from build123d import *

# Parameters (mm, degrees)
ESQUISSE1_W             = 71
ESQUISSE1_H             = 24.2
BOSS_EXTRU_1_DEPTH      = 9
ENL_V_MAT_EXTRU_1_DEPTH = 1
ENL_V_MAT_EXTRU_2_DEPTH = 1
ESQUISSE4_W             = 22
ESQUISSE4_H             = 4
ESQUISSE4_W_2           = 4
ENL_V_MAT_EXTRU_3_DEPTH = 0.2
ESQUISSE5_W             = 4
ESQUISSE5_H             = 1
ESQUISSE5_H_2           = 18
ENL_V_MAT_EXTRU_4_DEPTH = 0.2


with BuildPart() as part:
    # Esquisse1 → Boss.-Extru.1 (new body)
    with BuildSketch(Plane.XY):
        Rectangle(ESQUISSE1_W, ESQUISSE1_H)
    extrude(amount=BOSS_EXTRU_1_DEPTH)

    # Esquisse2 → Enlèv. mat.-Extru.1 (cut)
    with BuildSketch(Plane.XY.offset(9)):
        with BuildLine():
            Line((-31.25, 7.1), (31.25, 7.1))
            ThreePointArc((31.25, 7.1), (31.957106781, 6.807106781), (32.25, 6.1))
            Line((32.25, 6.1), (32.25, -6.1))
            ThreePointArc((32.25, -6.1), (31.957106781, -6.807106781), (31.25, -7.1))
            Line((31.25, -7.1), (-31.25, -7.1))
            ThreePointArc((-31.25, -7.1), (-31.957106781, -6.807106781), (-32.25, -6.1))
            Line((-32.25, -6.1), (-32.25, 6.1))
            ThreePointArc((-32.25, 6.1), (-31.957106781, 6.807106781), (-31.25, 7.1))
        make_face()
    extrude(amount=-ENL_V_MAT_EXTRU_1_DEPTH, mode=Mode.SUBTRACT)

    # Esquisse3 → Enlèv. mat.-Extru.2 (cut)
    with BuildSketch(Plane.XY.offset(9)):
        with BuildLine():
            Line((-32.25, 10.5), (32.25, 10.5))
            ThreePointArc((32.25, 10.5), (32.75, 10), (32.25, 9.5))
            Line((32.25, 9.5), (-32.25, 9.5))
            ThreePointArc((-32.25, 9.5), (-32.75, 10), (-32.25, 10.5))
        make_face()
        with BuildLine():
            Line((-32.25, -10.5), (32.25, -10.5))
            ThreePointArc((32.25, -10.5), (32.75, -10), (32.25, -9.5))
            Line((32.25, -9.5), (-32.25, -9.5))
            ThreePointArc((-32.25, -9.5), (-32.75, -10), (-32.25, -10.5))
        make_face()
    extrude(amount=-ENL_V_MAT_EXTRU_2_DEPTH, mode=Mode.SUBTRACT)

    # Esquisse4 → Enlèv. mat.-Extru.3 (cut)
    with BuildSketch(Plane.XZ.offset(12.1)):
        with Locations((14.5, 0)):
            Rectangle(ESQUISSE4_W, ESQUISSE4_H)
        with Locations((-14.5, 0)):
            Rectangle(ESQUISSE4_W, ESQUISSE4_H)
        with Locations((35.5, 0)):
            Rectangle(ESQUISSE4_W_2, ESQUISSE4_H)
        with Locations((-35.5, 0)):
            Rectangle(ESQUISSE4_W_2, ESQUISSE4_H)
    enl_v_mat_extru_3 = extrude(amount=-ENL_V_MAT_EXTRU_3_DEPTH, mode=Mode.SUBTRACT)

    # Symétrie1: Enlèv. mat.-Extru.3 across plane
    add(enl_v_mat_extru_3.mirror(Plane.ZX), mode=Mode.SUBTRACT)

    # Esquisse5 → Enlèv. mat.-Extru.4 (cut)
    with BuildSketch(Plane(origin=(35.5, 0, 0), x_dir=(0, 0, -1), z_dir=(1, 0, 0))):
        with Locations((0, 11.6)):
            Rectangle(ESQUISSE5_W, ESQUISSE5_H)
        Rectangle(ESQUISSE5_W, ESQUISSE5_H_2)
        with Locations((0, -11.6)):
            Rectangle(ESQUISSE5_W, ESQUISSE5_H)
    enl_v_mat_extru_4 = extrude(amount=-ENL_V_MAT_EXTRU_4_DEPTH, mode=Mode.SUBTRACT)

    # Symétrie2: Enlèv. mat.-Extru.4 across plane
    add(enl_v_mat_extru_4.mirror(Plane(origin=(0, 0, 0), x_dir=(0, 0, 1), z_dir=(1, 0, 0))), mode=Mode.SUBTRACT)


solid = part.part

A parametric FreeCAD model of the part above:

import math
import FreeCAD as App
import Part
import Sketcher

V = App.Vector

doc = App.newDocument("Part")
body = doc.addObject("PartDesign::Body", "Body")

sketch1 = doc.addObject("Sketcher::SketchObject", "Sketch")
body.addObject(sketch1)
sketch1.AttachmentSupport = (doc.XY_Plane, [""])
sketch1.MapMode = "FlatFace"
sketch1.addGeometry([
    Part.LineSegment(V(-36, 12, 0), V(-36, -12, 0)),
    Part.LineSegment(V(-36, -12, 0), V(36, -12, 0)),
    Part.LineSegment(V(36, -12, 0), V(36, 12, 0)),
    Part.LineSegment(V(36, 12, 0), V(-36, 12, 0)),
], False)
sketch1.addConstraint([
    Sketcher.Constraint("Coincident", 0, 2, 1, 1),
    Sketcher.Constraint("Coincident", 1, 2, 2, 1),
    Sketcher.Constraint("Coincident", 2, 2, 3, 1),
    Sketcher.Constraint("Coincident", 3, 2, 0, 1),
    Sketcher.Constraint("Vertical", 0),
    Sketcher.Constraint("Horizontal", 1),
    Sketcher.Constraint("Vertical", 2),
    Sketcher.Constraint("Horizontal", 3),
    Sketcher.Constraint("Symmetric", 0, 2, 2, 2, -1, 1),
    Sketcher.Constraint("DistanceX", 1, 1, 1, 2, 71.0),
    Sketcher.Constraint("DistanceY", 0, 2, 0, 1, 24.2),
])
pad1 = doc.addObject("PartDesign::Pad", "Pad")
body.addObject(pad1)
pad1.Profile = sketch1
pad1.Length = 9

sketch2 = doc.addObject("Sketcher::SketchObject", "Sketch001")
body.addObject(sketch2)
sketch2.AttachmentSupport = (doc.XY_Plane, [""])
sketch2.MapMode = "FlatFace"
sketch2.AttachmentOffset = App.Placement(V(0, 0, 9), App.Rotation())
sketch2.addGeometry([
    Part.LineSegment(V(31.2, 7.1, 0), V(-31.2, 7.1, 0)),
    Part.ArcOfCircle(Part.Circle(V(-31.2, 6.1, 0), V(0, 0, 1), 1), math.radians(90), math.radians(180)),
    Part.LineSegment(V(-32.2, 6.1, 0), V(-32.2, -6.1, 0)),
    Part.ArcOfCircle(Part.Circle(V(-31.2, -6.1, 0), V(0, 0, 1), 1), math.radians(-180), math.radians(-90)),
    Part.LineSegment(V(-31.2, -7.1, 0), V(31.2, -7.1, 0)),
    Part.ArcOfCircle(Part.Circle(V(31.2, -6.1, 0), V(0, 0, 1), 1), math.radians(-90), math.radians(0)),
    Part.LineSegment(V(32.2, -6.1, 0), V(32.2, 6.1, 0)),
    Part.ArcOfCircle(Part.Circle(V(31.2, 6.1, 0), V(0, 0, 1), 1), math.radians(0), math.radians(90)),
], False)
sketch2.addConstraint([
    Sketcher.Constraint("Tangent", 0, 2, 1, 1),
    Sketcher.Constraint("Tangent", 1, 2, 2, 1),
    Sketcher.Constraint("Tangent", 2, 2, 3, 1),
    Sketcher.Constraint("Tangent", 3, 2, 4, 1),
    Sketcher.Constraint("Tangent", 4, 2, 5, 1),
    Sketcher.Constraint("Tangent", 5, 2, 6, 1),
    Sketcher.Constraint("Tangent", 6, 2, 7, 1),
    Sketcher.Constraint("Tangent", 7, 2, 0, 1),
    Sketcher.Constraint("Horizontal", 0),
    Sketcher.Constraint("Vertical", 2),
    Sketcher.Constraint("Horizontal", 4),
    Sketcher.Constraint("Vertical", 6),
    Sketcher.Constraint("Equal", 1, 3),
    Sketcher.Constraint("Equal", 3, 5),
    Sketcher.Constraint("Equal", 5, 7),
    Sketcher.Constraint("Symmetric", 1, 3, 5, 3, -1, 1),
    Sketcher.Constraint("Radius", 1, 1.0),
    Sketcher.Constraint("DistanceX", 0, 2, 0, 1, 62.5),
    Sketcher.Constraint("DistanceY", 2, 2, 2, 1, 12.2),
])
pocket1 = doc.addObject("PartDesign::Pocket", "Pocket")
body.addObject(pocket1)
pocket1.Profile = sketch2
pocket1.Length = 1

sketch3 = doc.addObject("Sketcher::SketchObject", "Sketch002")
body.addObject(sketch3)
sketch3.AttachmentSupport = (doc.XY_Plane, [""])
sketch3.MapMode = "FlatFace"
sketch3.AttachmentOffset = App.Placement(V(0, 0, 9), App.Rotation())
sketch3.addGeometry([
    Part.LineSegment(V(32.2, 10.5, 0), V(-32.2, 10.5, 0)),
    Part.ArcOfCircle(Part.Circle(V(-32.2, 10, 0), V(0, 0, 1), 0.5), math.radians(90), math.radians(270)),
    Part.LineSegment(V(-32.2, 9.5, 0), V(32.2, 9.5, 0)),
    Part.ArcOfCircle(Part.Circle(V(32.2, 10, 0), V(0, 0, 1), 0.5), math.radians(-90), math.radians(90)),
    Part.LineSegment(V(-32.2, -10.5, 0), V(32.2, -10.5, 0)),
    Part.ArcOfCircle(Part.Circle(V(32.2, -10, 0), V(0, 0, 1), 0.5), math.radians(-90), math.radians(90)),
    Part.LineSegment(V(32.2, -9.5, 0), V(-32.2, -9.5, 0)),
    Part.ArcOfCircle(Part.Circle(V(-32.2, -10, 0), V(0, 0, 1), 0.5), math.radians(90), math.radians(270)),
], False)
sketch3.addConstraint([
    Sketcher.Constraint("Tangent", 0, 2, 1, 1),
    Sketcher.Constraint("Tangent", 1, 2, 2, 1),
    Sketcher.Constraint("Tangent", 2, 2, 3, 1),
    Sketcher.Constraint("Tangent", 3, 2, 0, 1),
    Sketcher.Constraint("Tangent", 4, 2, 5, 1),
    Sketcher.Constraint("Tangent", 5, 2, 6, 1),
    Sketcher.Constraint("Tangent", 6, 2, 7, 1),
    Sketcher.Constraint("Tangent", 7, 2, 4, 1),
    Sketcher.Constraint("Horizontal", 0),
    Sketcher.Constraint("Horizontal", 2),
    Sketcher.Constraint("Horizontal", 4),
    Sketcher.Constraint("Horizontal", 6),
    Sketcher.Constraint("Equal", 3, 5),
    Sketcher.Constraint("Symmetric", 1, 3, 5, 3, -1, 1),
    Sketcher.Constraint("Vertical", 3, 3, 5, 3),
    Sketcher.Constraint("Vertical", 1, 3, 7, 3),
    Sketcher.Constraint("Radius", 1, 0.5),
    Sketcher.Constraint("DistanceX", 0, 2, 0, 1, 64.5),
    Sketcher.Constraint("DistanceY", -1, 1, 1, 3, 10.0),
])
pocket2 = doc.addObject("PartDesign::Pocket", "Pocket001")
body.addObject(pocket2)
pocket2.Profile = sketch3
pocket2.Length = 1

sketch4 = doc.addObject("Sketcher::SketchObject", "Sketch003")
body.addObject(sketch4)
sketch4.AttachmentSupport = (doc.XZ_Plane, [""])
sketch4.MapMode = "FlatFace"
sketch4.AttachmentOffset = App.Placement(V(0, 0, 12.1), App.Rotation())
sketch4.addGeometry([
    Part.LineSegment(V(3.5, 2, 0), V(3.5, -2, 0)),
    Part.LineSegment(V(3.5, -2, 0), V(25.5, -2, 0)),
    Part.LineSegment(V(25.5, -2, 0), V(25.5, 2, 0)),
    Part.LineSegment(V(25.5, 2, 0), V(3.5, 2, 0)),
    Part.LineSegment(V(-25.5, 2, 0), V(-25.5, -2, 0)),
    Part.LineSegment(V(-25.5, -2, 0), V(-3.5, -2, 0)),
    Part.LineSegment(V(-3.5, -2, 0), V(-3.5, 2, 0)),
    Part.LineSegment(V(-3.5, 2, 0), V(-25.5, 2, 0)),
    Part.LineSegment(V(33.5, 2, 0), V(33.5, -2, 0)),
    Part.LineSegment(V(33.5, -2, 0), V(37.5, -2, 0)),
    Part.LineSegment(V(37.5, -2, 0), V(37.5, 2, 0)),
    Part.LineSegment(V(37.5, 2, 0), V(33.5, 2, 0)),
    Part.LineSegment(V(-37.5, 2, 0), V(-37.5, -2, 0)),
    Part.LineSegment(V(-37.5, -2, 0), V(-33.5, -2, 0)),
    Part.LineSegment(V(-33.5, -2, 0), V(-33.5, 2, 0)),
    Part.LineSegment(V(-33.5, 2, 0), V(-37.5, 2, 0)),
], False)
sketch4.addConstraint([
    Sketcher.Constraint("Coincident", 0, 2, 1, 1),
    Sketcher.Constraint("Coincident", 1, 2, 2, 1),
    Sketcher.Constraint("Coincident", 2, 2, 3, 1),
    Sketcher.Constraint("Coincident", 3, 2, 0, 1),
    Sketcher.Constraint("Coincident", 4, 2, 5, 1),
    Sketcher.Constraint("Coincident", 5, 2, 6, 1),
    Sketcher.Constraint("Coincident", 6, 2, 7, 1),
    Sketcher.Constraint("Coincident", 7, 2, 4, 1),
    Sketcher.Constraint("Coincident", 8, 2, 9, 1),
    Sketcher.Constraint("Coincident", 9, 2, 10, 1),
    Sketcher.Constraint("Coincident", 10, 2, 11, 1),
    Sketcher.Constraint("Coincident", 11, 2, 8, 1),
    Sketcher.Constraint("Coincident", 12, 2, 13, 1),
    Sketcher.Constraint("Coincident", 13, 2, 14, 1),
    Sketcher.Constraint("Coincident", 14, 2, 15, 1),
    Sketcher.Constraint("Coincident", 15, 2, 12, 1),
    Sketcher.Constraint("Vertical", 0),
    Sketcher.Constraint("Horizontal", 1),
    Sketcher.Constraint("Vertical", 2),
    Sketcher.Constraint("Horizontal", 3),
    Sketcher.Constraint("Vertical", 4),
    Sketcher.Constraint("Horizontal", 5),
    Sketcher.Constraint("Vertical", 6),
    Sketcher.Constraint("Horizontal", 7),
    Sketcher.Constraint("Vertical", 8),
    Sketcher.Constraint("Horizontal", 9),
    Sketcher.Constraint("Vertical", 10),
    Sketcher.Constraint("Horizontal", 11),
    Sketcher.Constraint("Vertical", 12),
    Sketcher.Constraint("Horizontal", 13),
    Sketcher.Constraint("Vertical", 14),
    Sketcher.Constraint("Horizontal", 15),
    Sketcher.Constraint("Symmetric", 2, 2, 4, 2, -1, 1),
    Sketcher.Constraint("Symmetric", 0, 2, 6, 2, -1, 1),
    Sketcher.Constraint("Symmetric", 10, 2, 12, 2, -1, 1),
    Sketcher.Constraint("Symmetric", 8, 2, 14, 2, -1, 1),
    Sketcher.Constraint("Horizontal", 1, 2, 4, 2),
    Sketcher.Constraint("Horizontal", 5, 2, 8, 2),
    Sketcher.Constraint("Horizontal", 7, 2, 10, 2),
    Sketcher.Constraint("Equal", 15, 0),
    Sketcher.Constraint("DistanceX", 1, 1, 1, 2, 22.0),
    Sketcher.Constraint("DistanceX", 9, 1, 9, 2, 4.0),
    Sketcher.Constraint("DistanceX", 4, 2, 0, 2, 29.0),
    Sketcher.Constraint("DistanceX", 1, 2, 8, 2, 8.0),
])
pocket3 = doc.addObject("PartDesign::Pocket", "Pocket002")
body.addObject(pocket3)
pocket3.Profile = sketch4
pocket3.Length = 0.2
doc.recompute()

mirrored = doc.addObject("PartDesign::Mirrored", "Mirrored")
body.addObject(mirrored)
mirrored.Originals = [pocket3]
mirrored.MirrorPlane = (doc.XZ_Plane, [""])
body.Tip = mirrored

sketch5 = doc.addObject("Sketcher::SketchObject", "Sketch004")
body.addObject(sketch5)
sketch5.AttachmentSupport = (doc.YZ_Plane, [""])
sketch5.MapMode = "FlatFace"
sketch5.AttachmentOffset = App.Placement(V(0, 0, 35.5), App.Rotation())
sketch5.addGeometry([
    Part.LineSegment(V(12.1, 2, 0), V(11.1, 2, 0)),
    Part.LineSegment(V(11.1, 2, 0), V(11.1, -2, 0)),
    Part.LineSegment(V(11.1, -2, 0), V(12.1, -2, 0)),
    Part.LineSegment(V(12.1, -2, 0), V(12.1, 2, 0)),
    Part.LineSegment(V(9, 2, 0), V(-9, 2, 0)),
    Part.LineSegment(V(-9, 2, 0), V(-9, -2, 0)),
    Part.LineSegment(V(-9, -2, 0), V(9, -2, 0)),
    Part.LineSegment(V(9, -2, 0), V(9, 2, 0)),
    Part.LineSegment(V(-11.1, 2, 0), V(-12.1, 2, 0)),
    Part.LineSegment(V(-12.1, 2, 0), V(-12.1, -2, 0)),
    Part.LineSegment(V(-12.1, -2, 0), V(-11.1, -2, 0)),
    Part.LineSegment(V(-11.1, -2, 0), V(-11.1, 2, 0)),
], False)
sketch5.addConstraint([
    Sketcher.Constraint("Coincident", 0, 2, 1, 1),
    Sketcher.Constraint("Coincident", 1, 2, 2, 1),
    Sketcher.Constraint("Coincident", 2, 2, 3, 1),
    Sketcher.Constraint("Coincident", 3, 2, 0, 1),
    Sketcher.Constraint("Coincident", 4, 2, 5, 1),
    Sketcher.Constraint("Coincident", 5, 2, 6, 1),
    Sketcher.Constraint("Coincident", 6, 2, 7, 1),
    Sketcher.Constraint("Coincident", 7, 2, 4, 1),
    Sketcher.Constraint("Coincident", 8, 2, 9, 1),
    Sketcher.Constraint("Coincident", 9, 2, 10, 1),
    Sketcher.Constraint("Coincident", 10, 2, 11, 1),
    Sketcher.Constraint("Coincident", 11, 2, 8, 1),
    Sketcher.Constraint("Horizontal", 0),
    Sketcher.Constraint("Vertical", 1),
    Sketcher.Constraint("Horizontal", 2),
    Sketcher.Constraint("Vertical", 3),
    Sketcher.Constraint("Horizontal", 4),
    Sketcher.Constraint("Vertical", 5),
    Sketcher.Constraint("Horizontal", 6),
    Sketcher.Constraint("Vertical", 7),
    Sketcher.Constraint("Horizontal", 8),
    Sketcher.Constraint("Vertical", 9),
    Sketcher.Constraint("Horizontal", 10),
    Sketcher.Constraint("Vertical", 11),
    Sketcher.Constraint("Symmetric", 4, 2, 6, 2, -1, 1),
    Sketcher.Constraint("Symmetric", 2, 2, 8, 2, -1, 1),
    Sketcher.Constraint("Symmetric", 0, 2, 10, 2, -1, 1),
    Sketcher.Constraint("Horizontal", 3, 2, 4, 2),
    Sketcher.Constraint("Horizontal", 2, 2, 5, 2),
    Sketcher.Constraint("DistanceX", 0, 2, 0, 1, 1.0),
    Sketcher.Constraint("DistanceX", 4, 2, 4, 1, 18.0),
    Sketcher.Constraint("DistanceY", 1, 2, 1, 1, 4.0),
    Sketcher.Constraint("DistanceX", -1, 1, 0, 2, 11.1),
])
pocket4 = doc.addObject("PartDesign::Pocket", "Pocket003")
body.addObject(pocket4)
pocket4.Profile = sketch5
pocket4.Length = 0.2
doc.recompute()

mirrored2 = doc.addObject("PartDesign::Mirrored", "Mirrored001")
body.addObject(mirrored2)
mirrored2.Originals = [pocket4]
mirrored2.MirrorPlane = (doc.YZ_Plane, [""])
body.Tip = mirrored2

doc.recompute()
